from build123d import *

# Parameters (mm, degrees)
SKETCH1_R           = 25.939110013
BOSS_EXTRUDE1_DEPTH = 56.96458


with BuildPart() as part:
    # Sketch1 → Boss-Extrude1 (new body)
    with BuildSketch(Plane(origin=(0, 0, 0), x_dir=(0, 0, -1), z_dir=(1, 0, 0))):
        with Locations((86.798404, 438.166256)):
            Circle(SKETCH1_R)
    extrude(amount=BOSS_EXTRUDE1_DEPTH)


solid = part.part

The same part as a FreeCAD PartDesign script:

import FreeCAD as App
import Part
import Sketcher

V = App.Vector

doc = App.newDocument("Part")
body = doc.addObject("PartDesign::Body", "Body")

# Sketch on YZ plane
sketch1 = doc.addObject("Sketcher::SketchObject", "Sketch")
body.addObject(sketch1)
sketch1.AttachmentSupport = (doc.YZ_Plane, [""])
sketch1.MapMode = "FlatFace"
sketch1.addGeometry(Part.Circle(V(438, -87, 0), V(0, 0, 1), 26), False)
sketch1.addConstraint([
    Sketcher.Constraint("Diameter", 0, 51.87822),
    Sketcher.Constraint("DistanceX", -1, 1, 0, 3, 438.166256),
    Sketcher.Constraint("DistanceY", 0, 3, -1, 1, 86.798404),
])
pad1 = doc.addObject("PartDesign::Pad", "Pad")
body.addObject(pad1)
pad1.Profile = sketch1
pad1.Length = 56.96458

doc.recompute()
